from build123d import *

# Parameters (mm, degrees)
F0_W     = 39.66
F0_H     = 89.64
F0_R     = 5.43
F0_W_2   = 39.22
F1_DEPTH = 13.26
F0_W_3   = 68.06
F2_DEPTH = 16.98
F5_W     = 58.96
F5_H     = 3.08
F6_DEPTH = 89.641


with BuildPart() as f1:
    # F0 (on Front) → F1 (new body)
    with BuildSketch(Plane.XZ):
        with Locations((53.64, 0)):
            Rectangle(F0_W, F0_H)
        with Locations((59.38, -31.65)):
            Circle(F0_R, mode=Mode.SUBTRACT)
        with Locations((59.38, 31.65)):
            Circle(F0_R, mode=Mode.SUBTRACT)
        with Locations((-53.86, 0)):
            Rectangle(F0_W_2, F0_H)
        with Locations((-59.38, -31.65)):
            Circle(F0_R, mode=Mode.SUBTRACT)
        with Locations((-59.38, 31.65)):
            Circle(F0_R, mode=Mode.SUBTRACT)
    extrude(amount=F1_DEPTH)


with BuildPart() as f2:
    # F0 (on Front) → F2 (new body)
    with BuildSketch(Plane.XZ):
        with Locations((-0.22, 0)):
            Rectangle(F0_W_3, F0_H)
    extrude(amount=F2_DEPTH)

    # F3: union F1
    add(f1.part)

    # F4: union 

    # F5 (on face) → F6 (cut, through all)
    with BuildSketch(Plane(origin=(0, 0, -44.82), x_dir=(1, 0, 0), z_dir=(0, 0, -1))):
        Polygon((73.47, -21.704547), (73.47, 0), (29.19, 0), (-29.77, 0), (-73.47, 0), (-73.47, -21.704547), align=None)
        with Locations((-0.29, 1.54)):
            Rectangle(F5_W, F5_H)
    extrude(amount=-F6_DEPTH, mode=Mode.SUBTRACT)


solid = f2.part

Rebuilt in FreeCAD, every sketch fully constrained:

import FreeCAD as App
import Part
import Sketcher

V = App.Vector
Q = App.Units.Quantity

doc = App.newDocument("Part")
body = doc.addObject("PartDesign::Body", "Body")
body.AllowCompound = True

sketch1 = body.newObject("Sketcher::SketchObject", "Sketch")
sketch1.AttachmentSupport = (doc.getObject("XZ_Plane"), [""])
sketch1.MapMode = "FlatFace"
sketch1.addGeometry(Part.LineSegment(V(34, 45, 0), V(34, -45, 0)), False)
sketch1.addGeometry(Part.LineSegment(V(34, -45, 0), V(73, -45, 0)), False)
sketch1.addGeometry(Part.LineSegment(V(73, -45, 0), V(73, 45, 0)), False)
sketch1.addGeometry(Part.LineSegment(V(73, 45, 0), V(34, 45, 0)), False)
sketch1.addGeometry(Part.Circle(V(59, -32, 0), V(0, 0, 1), 5), False)
sketch1.addGeometry(Part.Circle(V(59, 32, 0), V(0, 0, 1), 5), False)
sketch1.addGeometry(Part.LineSegment(V(-73, 45, 0), V(-73, -45, 0)), False)
sketch1.addGeometry(Part.LineSegment(V(-73, -45, 0), V(-34, -45, 0)), False)
sketch1.addGeometry(Part.LineSegment(V(-34, -45, 0), V(-34, 45, 0)), False)
sketch1.addGeometry(Part.LineSegment(V(-34, 45, 0), V(-73, 45, 0)), False)
sketch1.addGeometry(Part.Circle(V(-59, -32, 0), V(0, 0, 1), 5), False)
sketch1.addGeometry(Part.Circle(V(-59, 32, 0), V(0, 0, 1), 5), False)
sketch1.addConstraint(Sketcher.Constraint("Coincident", 0, 2, 1, 1))
sketch1.addConstraint(Sketcher.Constraint("Coincident", 1, 2, 2, 1))
sketch1.addConstraint(Sketcher.Constraint("Coincident", 2, 2, 3, 1))
sketch1.addConstraint(Sketcher.Constraint("Coincident", 3, 2, 0, 1))
sketch1.addConstraint(Sketcher.Constraint("Coincident", 6, 2, 7, 1))
sketch1.addConstraint(Sketcher.Constraint("Coincident", 7, 2, 8, 1))
sketch1.addConstraint(Sketcher.Constraint("Coincident", 8, 2, 9, 1))
sketch1.addConstraint(Sketcher.Constraint("Coincident", 9, 2, 6, 1))
sketch1.addConstraint(Sketcher.Constraint("Vertical", 0))
sketch1.addConstraint(Sketcher.Constraint("Horizontal", 1))
sketch1.addConstraint(Sketcher.Constraint("Vertical", 2))
sketch1.addConstraint(Sketcher.Constraint("Horizontal", 3))
sketch1.addConstraint(Sketcher.Constraint("Vertical", 6))
sketch1.addConstraint(Sketcher.Constraint("Horizontal", 7))
sketch1.addConstraint(Sketcher.Constraint("Vertical", 8))
sketch1.addConstraint(Sketcher.Constraint("Horizontal", 9))
sketch1.addConstraint(Sketcher.Constraint("Equal", 4, 5))
sketch1.addConstraint(Sketcher.Constraint("Equal", 5, 10))
sketch1.addConstraint(Sketcher.Constraint("Equal", 10, 11))
sketch1.addConstraint(Sketcher.Constraint("Symmetric", 5, 3, 10, 3, -1, 1))
sketch1.addConstraint(Sketcher.Constraint("Symmetric", 4, 3, 11, 3, -1, 1))
sketch1.addConstraint(Sketcher.Constraint("Symmetric", 2, 2, 6, 2, -1, 1))
sketch1.addConstraint(Sketcher.Constraint("Symmetric", 4, 3, 10, 3, -2))
sketch1.addConstraint(Sketcher.Constraint("Horizontal", 1, 2, 6, 2))
sketch1.addConstraint(Sketcher.Constraint("Horizontal", 3, 2, 8, 2))
sketch1.addConstraint(Sketcher.Constraint("Diameter", 4, Q("10.86 mm")))
sketch1.addConstraint(Sketcher.Constraint("DistanceX", 1, 1, 1, 2, Q("39.66 mm")))
sketch1.addConstraint(Sketcher.Constraint("DistanceX", 7, 1, 7, 2, Q("39.22 mm")))
sketch1.addConstraint(Sketcher.Constraint("DistanceY", 0, 2, 0, 1, Q("89.64 mm")))
sketch1.addConstraint(Sketcher.Constraint("DistanceY", 4, 3, 5, 3, Q("63.3 mm")))
sketch1.addConstraint(Sketcher.Constraint("DistanceX", -1, 1, 4, 3, Q("59.38 mm")))
sketch1.addConstraint(Sketcher.Constraint("DistanceX", -1, 1, 0, 2, Q("33.81 mm")))
pad1 = body.newObject("PartDesign::Pad", "Pad")
pad1.Profile = sketch1
pad1.Length = 13.26
body2 = doc.addObject("PartDesign::Body", "Body001")

sketch2 = body2.newObject("Sketcher::SketchObject", "Sketch001")
sketch2.AttachmentSupport = (doc.getObject("XZ_Plane001"), [""])
sketch2.MapMode = "FlatFace"
sketch2.addGeometry(Part.LineSegment(V(-34, 45, 0), V(-34, -45, 0)), False)
sketch2.addGeometry(Part.LineSegment(V(-34, -45, 0), V(34, -45, 0)), False)
sketch2.addGeometry(Part.LineSegment(V(34, -45, 0), V(34, 45, 0)), False)
sketch2.addGeometry(Part.LineSegment(V(34, 45, 0), V(-34, 45, 0)), False)
sketch2.addConstraint(Sketcher.Constraint("Coincident", 0, 2, 1, 1))
sketch2.addConstraint(Sketcher.Constraint("Coincident", 1, 2, 2, 1))
sketch2.addConstraint(Sketcher.Constraint("Coincident", 2, 2, 3, 1))
sketch2.addConstraint(Sketcher.Constraint("Coincident", 3, 2, 0, 1))
sketch2.addConstraint(Sketcher.Constraint("Vertical", 0))
sketch2.addConstraint(Sketcher.Constraint("Horizontal", 1))
sketch2.addConstraint(Sketcher.Constraint("Vertical", 2))
sketch2.addConstraint(Sketcher.Constraint("Horizontal", 3))
sketch2.addConstraint(Sketcher.Constraint("DistanceX", 1, 1, 1, 2, Q("68.06 mm")))
sketch2.addConstraint(Sketcher.Constraint("DistanceY", 0, 2, 0, 1, Q("89.64 mm")))
sketch2.addConstraint(Sketcher.Constraint("DistanceX", 0, 2, -1, 1, Q("34.25 mm")))
sketch2.addConstraint(Sketcher.Constraint("DistanceY", 0, 2, -1, 1, Q("44.82 mm")))
pad2 = body2.newObject("PartDesign::Pad", "Pad001")
pad2.Profile = sketch2
pad2.Length = 16.98
doc.recompute()

boolean = body2.newObject("PartDesign::Boolean", "Boolean")
boolean.Type = "Fuse"
boolean.addObjects([body])

sketch3 = body2.newObject("Sketcher::SketchObject", "Sketch002")
sketch3.AttachmentSupport = (doc.getObject("XY_Plane001"), [""])
sketch3.MapMode = "FlatFace"
sketch3.AttachmentOffset = App.Placement(V(0, 0, -44.82), App.Rotation())
sketch3.addGeometry(Part.LineSegment(V(73.5, 21.7, 0), V(73.5, 0, 0)), False)
sketch3.addGeometry(Part.LineSegment(V(73.5, 0, 0), V(29.2, 0, 0)), False)
sketch3.addGeometry(Part.LineSegment(V(29.2, 0, 0), V(29.2, -3.1, 0)), False)
sketch3.addGeometry(Part.LineSegment(V(29.2, -3.1, 0), V(-29.8, -3.1, 0)), False)
sketch3.addGeometry(Part.LineSegment(V(-29.8, -3.1, 0), V(-29.8, 0, 0)), False)
sketch3.addGeometry(Part.LineSegment(V(-29.8, 0, 0), V(-73.5, 0, 0)), False)
sketch3.addGeometry(Part.LineSegment(V(-73.5, 0, 0), V(-73.5, 21.7, 0)), False)
sketch3.addGeometry(Part.LineSegment(V(-73.5, 21.7, 0), V(73.5, 21.7, 0)), False)
sketch3.addConstraint(Sketcher.Constraint("Coincident", 0, 2, 1, 1))
sketch3.addConstraint(Sketcher.Constraint("Coincident", 1, 2, 2, 1))
sketch3.addConstraint(Sketcher.Constraint("Coincident", 2, 2, 3, 1))
sketch3.addConstraint(Sketcher.Constraint("Coincident", 3, 2, 4, 1))
sketch3.addConstraint(Sketcher.Constraint("Coincident", 4, 2, 5, 1))
sketch3.addConstraint(Sketcher.Constraint("Coincident", 5, 2, 6, 1))
sketch3.addConstraint(Sketcher.Constraint("Coincident", 6, 2, 7, 1))
sketch3.addConstraint(Sketcher.Constraint("Coincident", 7, 2, 0, 1))
sketch3.addConstraint(Sketcher.Constraint("Vertical", 0))
sketch3.addConstraint(Sketcher.Constraint("Horizontal", 1))
sketch3.addConstraint(Sketcher.Constraint("Vertical", 2))
sketch3.addConstraint(Sketcher.Constraint("Horizontal", 3))
sketch3.addConstraint(Sketcher.Constraint("Vertical", 4))
sketch3.addConstraint(Sketcher.Constraint("Horizontal", 5))
sketch3.addConstraint(Sketcher.Constraint("Vertical", 6))
sketch3.addConstraint(Sketcher.Constraint("Horizontal", 7))
sketch3.addConstraint(Sketcher.Constraint("Symmetric", 0, 2, 5, 2, -1, 1))
sketch3.addConstraint(Sketcher.Constraint("PointOnObject", 0, 2, -1))
sketch3.addConstraint(Sketcher.Constraint("DistanceX", 5, 2, 5, 1, Q("43.7 mm")))
sketch3.addConstraint(Sketcher.Constraint("DistanceX", 1, 2, 1, 1, Q("44.28 mm")))
sketch3.addConstraint(Sketcher.Constraint("DistanceX", 3, 2, 3, 1, Q("58.96 mm")))
sketch3.addConstraint(Sketcher.Constraint("DistanceY", 2, 2, 2, 1, Q("3.08 mm")))
sketch3.addConstraint(Sketcher.Constraint("DistanceY", 0, 2, 0, 1, Q("21.704547 mm")))
pocket1 = body2.newObject("PartDesign::Pocket", "Pocket")
pocket1.Profile = sketch3
pocket1.Type = "ThroughAll"
pocket1.Reversed = True

doc.recompute()
